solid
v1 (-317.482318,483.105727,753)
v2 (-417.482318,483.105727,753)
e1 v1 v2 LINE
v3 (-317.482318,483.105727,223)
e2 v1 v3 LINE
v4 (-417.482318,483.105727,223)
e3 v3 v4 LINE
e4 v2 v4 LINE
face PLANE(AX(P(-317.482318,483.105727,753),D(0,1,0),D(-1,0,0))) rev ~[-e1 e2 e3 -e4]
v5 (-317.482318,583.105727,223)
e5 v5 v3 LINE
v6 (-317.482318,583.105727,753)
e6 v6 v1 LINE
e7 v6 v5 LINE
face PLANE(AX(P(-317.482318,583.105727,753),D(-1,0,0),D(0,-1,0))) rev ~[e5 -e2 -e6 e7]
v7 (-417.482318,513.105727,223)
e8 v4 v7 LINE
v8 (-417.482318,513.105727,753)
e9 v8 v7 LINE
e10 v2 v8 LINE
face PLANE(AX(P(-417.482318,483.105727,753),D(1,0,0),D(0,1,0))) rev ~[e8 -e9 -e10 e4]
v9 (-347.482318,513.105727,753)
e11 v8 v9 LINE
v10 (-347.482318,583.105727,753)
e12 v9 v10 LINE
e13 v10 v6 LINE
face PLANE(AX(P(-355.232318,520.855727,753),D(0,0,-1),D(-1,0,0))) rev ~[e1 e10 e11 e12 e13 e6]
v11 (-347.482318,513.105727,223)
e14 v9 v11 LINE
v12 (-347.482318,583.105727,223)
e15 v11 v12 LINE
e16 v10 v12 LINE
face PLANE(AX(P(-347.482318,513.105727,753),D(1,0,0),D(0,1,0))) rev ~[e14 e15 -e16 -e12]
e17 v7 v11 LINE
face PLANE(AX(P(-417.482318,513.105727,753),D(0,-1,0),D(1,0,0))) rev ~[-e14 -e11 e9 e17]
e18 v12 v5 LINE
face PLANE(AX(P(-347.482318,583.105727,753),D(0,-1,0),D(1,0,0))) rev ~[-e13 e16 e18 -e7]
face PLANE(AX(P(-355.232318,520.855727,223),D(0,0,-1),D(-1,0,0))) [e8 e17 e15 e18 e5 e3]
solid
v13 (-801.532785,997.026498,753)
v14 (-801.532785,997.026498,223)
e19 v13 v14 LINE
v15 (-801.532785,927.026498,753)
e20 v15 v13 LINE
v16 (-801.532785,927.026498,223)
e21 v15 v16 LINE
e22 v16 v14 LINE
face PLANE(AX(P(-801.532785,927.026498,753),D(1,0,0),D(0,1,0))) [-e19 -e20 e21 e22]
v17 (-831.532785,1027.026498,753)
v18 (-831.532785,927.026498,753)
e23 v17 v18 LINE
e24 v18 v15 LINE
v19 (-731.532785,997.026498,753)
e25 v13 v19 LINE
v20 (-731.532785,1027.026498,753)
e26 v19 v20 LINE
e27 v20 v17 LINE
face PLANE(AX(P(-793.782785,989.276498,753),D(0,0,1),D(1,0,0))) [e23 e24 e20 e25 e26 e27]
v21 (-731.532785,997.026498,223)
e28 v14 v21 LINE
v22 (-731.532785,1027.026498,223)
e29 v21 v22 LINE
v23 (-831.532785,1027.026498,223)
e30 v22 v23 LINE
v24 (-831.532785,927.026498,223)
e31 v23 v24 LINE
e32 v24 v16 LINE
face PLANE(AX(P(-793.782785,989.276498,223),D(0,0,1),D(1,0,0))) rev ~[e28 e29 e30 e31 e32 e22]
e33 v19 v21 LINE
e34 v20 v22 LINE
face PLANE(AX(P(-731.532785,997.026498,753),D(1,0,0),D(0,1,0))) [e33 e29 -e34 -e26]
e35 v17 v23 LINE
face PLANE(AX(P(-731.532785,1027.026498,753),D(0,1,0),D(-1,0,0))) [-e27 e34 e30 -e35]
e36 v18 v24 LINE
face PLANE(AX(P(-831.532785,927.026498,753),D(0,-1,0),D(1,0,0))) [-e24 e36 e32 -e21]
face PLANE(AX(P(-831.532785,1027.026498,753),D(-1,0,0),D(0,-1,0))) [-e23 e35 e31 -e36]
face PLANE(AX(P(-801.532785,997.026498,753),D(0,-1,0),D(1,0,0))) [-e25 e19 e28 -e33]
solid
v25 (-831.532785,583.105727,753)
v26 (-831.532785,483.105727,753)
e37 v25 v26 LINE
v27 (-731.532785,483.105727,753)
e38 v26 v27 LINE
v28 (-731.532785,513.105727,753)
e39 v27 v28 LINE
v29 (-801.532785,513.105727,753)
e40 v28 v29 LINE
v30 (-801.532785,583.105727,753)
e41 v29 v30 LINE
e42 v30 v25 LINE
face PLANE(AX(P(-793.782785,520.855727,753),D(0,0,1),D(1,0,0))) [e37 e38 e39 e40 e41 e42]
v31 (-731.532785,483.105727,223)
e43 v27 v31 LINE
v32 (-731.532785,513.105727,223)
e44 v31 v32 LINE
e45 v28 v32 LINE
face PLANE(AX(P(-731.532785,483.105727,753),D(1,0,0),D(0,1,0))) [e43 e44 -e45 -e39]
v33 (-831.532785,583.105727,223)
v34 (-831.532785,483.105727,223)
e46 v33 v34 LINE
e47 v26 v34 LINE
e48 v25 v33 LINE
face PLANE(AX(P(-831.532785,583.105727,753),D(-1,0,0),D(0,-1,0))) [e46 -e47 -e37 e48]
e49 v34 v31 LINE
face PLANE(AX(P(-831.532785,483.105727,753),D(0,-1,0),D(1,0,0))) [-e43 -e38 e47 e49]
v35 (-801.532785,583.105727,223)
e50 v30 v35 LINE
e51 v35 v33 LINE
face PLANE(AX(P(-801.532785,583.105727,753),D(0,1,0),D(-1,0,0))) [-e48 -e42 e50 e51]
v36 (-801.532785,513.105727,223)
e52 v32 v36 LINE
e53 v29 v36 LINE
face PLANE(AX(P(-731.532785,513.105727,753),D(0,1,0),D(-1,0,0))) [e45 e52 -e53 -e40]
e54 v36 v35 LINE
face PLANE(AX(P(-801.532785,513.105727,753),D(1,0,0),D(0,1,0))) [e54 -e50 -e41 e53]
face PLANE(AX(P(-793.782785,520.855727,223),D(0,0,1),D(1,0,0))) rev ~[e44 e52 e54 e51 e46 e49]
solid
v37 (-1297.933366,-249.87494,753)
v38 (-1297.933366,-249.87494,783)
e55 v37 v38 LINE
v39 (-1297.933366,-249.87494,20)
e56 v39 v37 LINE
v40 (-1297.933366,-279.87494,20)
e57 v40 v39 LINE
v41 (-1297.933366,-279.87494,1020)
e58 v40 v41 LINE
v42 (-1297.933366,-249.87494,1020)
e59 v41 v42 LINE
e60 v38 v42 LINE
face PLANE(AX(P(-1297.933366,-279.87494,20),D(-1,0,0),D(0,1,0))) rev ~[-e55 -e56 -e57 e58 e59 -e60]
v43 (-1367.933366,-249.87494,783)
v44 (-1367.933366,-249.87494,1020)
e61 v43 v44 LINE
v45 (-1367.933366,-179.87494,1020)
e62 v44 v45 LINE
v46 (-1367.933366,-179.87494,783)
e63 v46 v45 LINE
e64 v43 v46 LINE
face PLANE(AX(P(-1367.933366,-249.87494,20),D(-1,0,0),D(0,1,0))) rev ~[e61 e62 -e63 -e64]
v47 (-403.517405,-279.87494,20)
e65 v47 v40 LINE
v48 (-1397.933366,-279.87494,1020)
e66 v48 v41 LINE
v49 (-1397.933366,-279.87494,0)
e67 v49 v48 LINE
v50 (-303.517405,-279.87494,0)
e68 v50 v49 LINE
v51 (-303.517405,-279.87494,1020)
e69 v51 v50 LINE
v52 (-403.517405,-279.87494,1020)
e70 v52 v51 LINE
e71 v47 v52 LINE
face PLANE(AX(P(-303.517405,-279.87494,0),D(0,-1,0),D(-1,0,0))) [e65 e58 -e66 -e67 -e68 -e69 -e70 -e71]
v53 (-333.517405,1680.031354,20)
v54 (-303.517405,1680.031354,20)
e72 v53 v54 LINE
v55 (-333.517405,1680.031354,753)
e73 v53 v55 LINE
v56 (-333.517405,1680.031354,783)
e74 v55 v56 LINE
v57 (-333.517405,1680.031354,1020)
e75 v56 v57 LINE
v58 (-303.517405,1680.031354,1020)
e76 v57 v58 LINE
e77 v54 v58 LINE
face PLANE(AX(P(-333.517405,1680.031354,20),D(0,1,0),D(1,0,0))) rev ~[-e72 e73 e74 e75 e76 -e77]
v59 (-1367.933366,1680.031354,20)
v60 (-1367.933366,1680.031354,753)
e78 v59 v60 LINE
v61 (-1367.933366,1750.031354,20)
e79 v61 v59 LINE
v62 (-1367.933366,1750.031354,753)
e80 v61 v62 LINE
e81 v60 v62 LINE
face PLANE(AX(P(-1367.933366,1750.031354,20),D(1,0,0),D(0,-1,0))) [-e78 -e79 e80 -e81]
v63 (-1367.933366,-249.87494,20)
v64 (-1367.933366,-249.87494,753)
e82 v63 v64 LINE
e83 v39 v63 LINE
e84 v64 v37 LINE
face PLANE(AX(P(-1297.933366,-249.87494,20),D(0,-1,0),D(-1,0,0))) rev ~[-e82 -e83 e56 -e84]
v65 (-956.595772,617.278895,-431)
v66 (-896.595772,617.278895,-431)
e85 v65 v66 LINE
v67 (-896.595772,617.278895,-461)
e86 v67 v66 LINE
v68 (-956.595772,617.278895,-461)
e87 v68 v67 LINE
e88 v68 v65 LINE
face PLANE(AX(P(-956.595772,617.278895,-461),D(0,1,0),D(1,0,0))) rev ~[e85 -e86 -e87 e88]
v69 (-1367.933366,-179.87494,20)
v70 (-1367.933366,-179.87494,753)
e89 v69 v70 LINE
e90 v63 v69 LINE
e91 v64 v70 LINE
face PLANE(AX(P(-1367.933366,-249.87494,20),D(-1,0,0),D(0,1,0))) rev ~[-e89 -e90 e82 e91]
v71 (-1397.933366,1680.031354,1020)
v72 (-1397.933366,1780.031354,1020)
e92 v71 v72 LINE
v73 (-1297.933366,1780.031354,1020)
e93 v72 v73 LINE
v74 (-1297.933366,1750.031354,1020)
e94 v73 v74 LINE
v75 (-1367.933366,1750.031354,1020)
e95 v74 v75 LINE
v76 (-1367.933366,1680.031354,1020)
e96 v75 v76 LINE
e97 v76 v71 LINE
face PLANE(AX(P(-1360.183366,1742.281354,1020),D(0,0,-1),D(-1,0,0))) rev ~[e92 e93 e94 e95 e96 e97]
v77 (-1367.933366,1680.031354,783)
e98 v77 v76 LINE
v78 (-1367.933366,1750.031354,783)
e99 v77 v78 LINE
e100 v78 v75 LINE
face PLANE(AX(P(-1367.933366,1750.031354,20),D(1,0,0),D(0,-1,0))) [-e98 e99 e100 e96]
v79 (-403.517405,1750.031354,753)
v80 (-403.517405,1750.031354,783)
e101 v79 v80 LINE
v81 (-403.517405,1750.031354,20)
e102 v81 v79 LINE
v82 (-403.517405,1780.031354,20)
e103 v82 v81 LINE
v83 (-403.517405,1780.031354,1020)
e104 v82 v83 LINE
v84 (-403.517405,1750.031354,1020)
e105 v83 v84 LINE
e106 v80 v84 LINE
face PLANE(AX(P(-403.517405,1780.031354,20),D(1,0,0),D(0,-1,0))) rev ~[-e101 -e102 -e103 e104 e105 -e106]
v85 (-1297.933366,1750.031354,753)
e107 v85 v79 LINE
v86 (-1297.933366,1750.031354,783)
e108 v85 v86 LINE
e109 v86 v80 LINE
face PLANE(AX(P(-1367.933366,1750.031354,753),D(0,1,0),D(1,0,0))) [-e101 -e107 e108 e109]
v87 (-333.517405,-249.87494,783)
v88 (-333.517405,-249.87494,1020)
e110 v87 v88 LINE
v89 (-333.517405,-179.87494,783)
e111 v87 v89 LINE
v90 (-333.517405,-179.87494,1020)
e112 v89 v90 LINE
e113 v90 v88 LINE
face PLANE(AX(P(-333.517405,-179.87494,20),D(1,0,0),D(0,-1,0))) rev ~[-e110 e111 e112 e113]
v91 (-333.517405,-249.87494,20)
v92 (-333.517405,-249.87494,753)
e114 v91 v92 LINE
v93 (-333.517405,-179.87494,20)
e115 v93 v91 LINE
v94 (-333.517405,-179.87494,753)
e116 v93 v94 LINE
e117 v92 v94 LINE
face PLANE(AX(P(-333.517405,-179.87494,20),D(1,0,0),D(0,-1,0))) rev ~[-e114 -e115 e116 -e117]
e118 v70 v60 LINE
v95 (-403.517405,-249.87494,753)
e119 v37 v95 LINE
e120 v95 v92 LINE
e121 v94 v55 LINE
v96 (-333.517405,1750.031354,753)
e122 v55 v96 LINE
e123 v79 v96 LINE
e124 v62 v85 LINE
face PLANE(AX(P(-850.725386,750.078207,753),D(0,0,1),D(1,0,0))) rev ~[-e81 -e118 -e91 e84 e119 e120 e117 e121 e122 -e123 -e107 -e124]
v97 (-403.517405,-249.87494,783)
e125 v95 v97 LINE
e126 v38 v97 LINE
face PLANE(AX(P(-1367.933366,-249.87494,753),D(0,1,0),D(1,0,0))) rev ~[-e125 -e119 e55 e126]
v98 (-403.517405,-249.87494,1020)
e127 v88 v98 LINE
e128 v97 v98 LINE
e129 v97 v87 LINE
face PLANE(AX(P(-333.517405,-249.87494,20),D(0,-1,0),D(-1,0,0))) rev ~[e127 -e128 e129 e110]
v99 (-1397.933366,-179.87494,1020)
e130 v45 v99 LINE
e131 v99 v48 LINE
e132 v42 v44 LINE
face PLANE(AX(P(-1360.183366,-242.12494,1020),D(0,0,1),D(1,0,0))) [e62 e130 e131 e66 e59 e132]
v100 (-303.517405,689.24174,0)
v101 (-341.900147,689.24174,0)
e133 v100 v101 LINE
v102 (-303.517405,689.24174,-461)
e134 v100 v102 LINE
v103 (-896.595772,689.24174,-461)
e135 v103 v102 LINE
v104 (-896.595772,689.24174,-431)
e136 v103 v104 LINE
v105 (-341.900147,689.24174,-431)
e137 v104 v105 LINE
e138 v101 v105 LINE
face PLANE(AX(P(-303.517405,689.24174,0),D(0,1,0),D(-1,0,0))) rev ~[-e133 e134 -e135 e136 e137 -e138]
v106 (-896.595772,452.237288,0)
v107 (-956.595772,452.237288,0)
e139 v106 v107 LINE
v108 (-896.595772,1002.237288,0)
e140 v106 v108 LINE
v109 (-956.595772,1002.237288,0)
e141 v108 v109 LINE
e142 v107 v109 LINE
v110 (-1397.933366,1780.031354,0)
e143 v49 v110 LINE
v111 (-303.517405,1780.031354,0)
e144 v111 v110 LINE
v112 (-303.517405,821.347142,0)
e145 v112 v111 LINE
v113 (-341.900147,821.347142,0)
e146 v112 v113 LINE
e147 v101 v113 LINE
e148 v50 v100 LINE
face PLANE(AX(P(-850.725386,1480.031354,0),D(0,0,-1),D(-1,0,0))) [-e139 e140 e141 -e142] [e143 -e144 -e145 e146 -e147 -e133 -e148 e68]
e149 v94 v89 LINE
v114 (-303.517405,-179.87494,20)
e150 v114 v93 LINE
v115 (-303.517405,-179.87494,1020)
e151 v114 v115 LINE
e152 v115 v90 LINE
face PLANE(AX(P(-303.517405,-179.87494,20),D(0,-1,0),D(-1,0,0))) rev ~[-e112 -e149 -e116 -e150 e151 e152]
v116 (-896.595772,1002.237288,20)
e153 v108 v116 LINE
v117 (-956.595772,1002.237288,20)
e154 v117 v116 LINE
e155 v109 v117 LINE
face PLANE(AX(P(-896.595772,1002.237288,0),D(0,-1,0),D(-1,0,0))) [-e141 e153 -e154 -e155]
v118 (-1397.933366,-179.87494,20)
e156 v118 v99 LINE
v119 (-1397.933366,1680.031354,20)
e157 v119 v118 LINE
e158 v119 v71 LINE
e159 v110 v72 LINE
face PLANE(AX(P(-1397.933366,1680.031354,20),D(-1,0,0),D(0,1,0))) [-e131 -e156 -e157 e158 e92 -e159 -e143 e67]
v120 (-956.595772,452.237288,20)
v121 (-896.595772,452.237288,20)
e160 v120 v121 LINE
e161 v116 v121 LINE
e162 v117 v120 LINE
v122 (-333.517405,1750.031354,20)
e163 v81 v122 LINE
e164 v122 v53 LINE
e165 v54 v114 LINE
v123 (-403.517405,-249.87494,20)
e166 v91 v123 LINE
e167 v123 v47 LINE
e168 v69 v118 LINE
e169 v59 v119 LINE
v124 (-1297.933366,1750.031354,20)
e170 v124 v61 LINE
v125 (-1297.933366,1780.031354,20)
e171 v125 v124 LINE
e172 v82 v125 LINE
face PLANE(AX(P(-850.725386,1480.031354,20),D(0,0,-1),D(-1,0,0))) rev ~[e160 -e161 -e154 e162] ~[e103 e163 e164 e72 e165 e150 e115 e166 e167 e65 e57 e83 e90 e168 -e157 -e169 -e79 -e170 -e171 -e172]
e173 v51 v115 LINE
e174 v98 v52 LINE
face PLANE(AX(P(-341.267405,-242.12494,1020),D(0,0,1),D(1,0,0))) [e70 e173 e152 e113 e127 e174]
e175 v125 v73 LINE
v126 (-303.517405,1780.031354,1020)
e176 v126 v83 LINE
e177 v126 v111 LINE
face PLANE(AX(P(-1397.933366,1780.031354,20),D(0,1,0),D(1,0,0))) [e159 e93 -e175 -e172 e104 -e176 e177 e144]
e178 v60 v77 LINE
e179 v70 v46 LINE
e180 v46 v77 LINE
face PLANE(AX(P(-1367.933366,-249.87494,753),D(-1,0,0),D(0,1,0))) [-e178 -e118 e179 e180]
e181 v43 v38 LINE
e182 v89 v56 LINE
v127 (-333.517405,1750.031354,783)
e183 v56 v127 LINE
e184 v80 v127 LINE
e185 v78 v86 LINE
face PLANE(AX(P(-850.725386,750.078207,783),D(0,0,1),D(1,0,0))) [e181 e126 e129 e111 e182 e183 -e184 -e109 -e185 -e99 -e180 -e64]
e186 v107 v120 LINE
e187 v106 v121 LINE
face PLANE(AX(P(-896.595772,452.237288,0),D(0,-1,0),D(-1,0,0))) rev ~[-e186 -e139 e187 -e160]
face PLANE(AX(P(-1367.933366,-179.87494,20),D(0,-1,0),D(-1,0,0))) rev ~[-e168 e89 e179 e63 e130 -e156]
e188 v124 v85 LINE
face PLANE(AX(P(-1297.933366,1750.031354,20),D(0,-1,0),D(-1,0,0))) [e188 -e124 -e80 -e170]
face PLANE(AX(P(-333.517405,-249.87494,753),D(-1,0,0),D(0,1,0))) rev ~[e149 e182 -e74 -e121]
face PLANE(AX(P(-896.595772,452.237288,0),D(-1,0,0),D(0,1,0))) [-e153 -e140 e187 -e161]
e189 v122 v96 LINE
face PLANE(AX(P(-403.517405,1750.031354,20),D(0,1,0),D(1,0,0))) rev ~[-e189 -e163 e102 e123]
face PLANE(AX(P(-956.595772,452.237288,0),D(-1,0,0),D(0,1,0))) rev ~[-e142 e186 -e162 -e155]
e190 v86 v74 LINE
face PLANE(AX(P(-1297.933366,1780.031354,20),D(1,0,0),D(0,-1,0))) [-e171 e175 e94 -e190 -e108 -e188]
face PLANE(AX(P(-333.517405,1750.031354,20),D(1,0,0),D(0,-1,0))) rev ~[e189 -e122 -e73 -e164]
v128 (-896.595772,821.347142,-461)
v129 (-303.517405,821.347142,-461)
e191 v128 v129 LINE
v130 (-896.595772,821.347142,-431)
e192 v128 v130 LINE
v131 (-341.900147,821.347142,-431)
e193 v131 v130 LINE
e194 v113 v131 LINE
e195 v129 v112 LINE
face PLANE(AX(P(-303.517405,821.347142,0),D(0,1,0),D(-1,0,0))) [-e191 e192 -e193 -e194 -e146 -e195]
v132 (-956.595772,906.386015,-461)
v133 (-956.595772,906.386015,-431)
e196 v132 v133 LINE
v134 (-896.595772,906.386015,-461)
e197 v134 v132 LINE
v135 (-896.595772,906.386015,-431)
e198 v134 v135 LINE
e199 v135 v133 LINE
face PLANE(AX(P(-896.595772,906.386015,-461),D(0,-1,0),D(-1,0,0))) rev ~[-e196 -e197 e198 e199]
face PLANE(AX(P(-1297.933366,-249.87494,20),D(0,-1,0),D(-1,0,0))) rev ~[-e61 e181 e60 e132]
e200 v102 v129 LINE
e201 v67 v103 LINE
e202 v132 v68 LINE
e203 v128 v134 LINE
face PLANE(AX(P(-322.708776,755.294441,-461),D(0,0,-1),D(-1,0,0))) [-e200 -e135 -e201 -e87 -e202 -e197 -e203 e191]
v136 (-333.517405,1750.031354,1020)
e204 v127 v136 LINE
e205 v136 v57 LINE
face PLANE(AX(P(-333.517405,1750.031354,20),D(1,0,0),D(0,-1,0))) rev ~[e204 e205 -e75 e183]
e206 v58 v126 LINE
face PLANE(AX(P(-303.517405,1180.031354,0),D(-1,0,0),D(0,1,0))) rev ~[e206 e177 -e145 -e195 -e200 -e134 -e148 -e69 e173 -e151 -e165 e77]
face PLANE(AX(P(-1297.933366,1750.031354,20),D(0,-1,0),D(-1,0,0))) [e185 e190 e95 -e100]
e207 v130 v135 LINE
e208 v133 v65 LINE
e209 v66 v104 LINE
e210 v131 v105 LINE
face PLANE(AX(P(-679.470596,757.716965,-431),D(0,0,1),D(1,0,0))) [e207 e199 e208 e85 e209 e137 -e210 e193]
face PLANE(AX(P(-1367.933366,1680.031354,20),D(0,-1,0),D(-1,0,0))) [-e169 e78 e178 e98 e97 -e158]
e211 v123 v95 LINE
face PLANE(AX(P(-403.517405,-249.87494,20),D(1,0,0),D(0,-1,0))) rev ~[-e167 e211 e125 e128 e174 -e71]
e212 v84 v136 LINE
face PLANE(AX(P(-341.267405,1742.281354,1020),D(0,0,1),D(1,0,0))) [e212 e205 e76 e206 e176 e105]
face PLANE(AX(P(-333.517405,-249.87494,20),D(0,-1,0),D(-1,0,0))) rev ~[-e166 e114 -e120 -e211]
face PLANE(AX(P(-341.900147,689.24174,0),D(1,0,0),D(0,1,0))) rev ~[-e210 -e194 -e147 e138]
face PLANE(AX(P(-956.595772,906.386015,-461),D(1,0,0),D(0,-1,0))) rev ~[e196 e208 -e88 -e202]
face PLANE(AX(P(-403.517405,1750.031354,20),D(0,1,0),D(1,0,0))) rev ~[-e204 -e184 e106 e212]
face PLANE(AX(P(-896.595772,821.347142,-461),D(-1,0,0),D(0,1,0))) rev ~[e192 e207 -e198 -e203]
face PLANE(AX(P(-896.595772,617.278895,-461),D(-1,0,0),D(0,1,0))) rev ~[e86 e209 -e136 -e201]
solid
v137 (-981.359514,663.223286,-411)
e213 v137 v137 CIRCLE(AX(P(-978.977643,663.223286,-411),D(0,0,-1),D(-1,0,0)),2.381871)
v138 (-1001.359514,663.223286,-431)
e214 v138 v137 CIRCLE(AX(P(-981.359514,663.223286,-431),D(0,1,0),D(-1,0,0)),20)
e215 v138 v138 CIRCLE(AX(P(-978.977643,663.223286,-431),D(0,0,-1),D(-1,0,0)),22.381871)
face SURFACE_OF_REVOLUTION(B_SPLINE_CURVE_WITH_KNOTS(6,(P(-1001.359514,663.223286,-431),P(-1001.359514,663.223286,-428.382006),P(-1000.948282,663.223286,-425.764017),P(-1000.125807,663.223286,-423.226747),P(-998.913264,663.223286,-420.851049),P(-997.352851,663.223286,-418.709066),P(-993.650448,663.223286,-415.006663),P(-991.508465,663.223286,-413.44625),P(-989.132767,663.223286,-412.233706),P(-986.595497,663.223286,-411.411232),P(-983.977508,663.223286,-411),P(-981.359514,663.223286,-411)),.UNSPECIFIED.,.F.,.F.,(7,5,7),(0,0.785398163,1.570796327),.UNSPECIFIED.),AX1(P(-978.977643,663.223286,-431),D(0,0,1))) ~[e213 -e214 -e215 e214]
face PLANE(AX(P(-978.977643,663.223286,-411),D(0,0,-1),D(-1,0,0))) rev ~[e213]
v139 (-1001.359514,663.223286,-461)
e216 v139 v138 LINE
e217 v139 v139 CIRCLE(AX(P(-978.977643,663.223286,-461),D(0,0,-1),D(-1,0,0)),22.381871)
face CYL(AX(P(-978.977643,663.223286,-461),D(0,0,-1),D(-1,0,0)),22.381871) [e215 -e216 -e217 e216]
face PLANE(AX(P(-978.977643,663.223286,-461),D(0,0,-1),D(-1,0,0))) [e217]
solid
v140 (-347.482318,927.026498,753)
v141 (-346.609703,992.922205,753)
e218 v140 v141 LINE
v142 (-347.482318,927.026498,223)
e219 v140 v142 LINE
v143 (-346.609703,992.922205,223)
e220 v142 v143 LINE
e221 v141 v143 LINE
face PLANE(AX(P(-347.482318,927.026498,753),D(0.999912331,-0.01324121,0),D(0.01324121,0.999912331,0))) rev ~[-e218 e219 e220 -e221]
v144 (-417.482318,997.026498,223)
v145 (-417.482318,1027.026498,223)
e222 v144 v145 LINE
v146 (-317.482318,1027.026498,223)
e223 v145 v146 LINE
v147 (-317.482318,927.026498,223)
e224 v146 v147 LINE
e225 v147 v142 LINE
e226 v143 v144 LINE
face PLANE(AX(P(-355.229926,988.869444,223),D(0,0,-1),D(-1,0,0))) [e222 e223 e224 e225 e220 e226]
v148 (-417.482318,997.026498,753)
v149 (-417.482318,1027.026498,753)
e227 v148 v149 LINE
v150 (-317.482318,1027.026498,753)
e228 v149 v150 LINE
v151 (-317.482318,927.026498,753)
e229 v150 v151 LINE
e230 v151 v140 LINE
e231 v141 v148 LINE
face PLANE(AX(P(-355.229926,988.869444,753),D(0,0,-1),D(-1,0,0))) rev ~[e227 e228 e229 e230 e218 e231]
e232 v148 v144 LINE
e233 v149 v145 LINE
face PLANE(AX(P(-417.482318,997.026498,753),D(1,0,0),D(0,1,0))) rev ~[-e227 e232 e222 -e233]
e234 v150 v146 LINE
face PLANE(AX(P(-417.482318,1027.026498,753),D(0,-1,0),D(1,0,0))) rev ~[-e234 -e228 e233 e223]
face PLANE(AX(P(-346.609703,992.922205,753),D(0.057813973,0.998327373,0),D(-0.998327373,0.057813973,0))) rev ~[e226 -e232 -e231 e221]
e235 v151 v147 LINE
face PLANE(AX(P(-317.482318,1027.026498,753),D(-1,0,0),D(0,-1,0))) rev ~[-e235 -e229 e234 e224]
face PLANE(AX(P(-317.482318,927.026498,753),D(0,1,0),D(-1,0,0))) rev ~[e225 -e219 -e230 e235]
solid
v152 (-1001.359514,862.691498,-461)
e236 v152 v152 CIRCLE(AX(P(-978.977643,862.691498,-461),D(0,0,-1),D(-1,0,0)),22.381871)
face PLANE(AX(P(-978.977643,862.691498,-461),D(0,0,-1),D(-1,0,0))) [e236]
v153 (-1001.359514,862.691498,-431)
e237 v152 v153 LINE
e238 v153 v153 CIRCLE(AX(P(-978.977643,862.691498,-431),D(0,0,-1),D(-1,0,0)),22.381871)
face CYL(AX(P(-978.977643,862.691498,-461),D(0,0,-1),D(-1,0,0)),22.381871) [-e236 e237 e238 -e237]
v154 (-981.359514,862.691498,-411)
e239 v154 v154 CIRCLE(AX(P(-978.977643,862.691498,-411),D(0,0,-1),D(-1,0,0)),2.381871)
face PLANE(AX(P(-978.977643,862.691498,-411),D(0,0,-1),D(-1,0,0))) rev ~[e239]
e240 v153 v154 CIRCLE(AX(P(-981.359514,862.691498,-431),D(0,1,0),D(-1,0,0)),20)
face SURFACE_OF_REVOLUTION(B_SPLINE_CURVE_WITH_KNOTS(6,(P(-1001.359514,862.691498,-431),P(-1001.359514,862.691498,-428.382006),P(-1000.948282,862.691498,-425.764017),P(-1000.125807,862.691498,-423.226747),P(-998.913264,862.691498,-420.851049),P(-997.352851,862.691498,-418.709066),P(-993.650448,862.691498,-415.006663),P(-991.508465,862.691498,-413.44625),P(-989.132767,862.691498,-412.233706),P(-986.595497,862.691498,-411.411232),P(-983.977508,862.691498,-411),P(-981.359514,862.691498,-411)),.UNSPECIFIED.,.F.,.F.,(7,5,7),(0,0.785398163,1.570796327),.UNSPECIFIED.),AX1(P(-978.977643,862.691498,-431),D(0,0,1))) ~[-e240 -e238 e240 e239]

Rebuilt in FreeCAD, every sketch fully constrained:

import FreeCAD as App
import Part
import Sketcher


def edges_at(feature, points):
    """Names of the edges that pass closest to the given points."""
    edges = feature.Shape.Edges
    near = lambda p: min(range(len(edges)), key=lambda i: edges[i].distToShape(Part.Vertex(*p))[0])
    return sorted({f"Edge{near(p) + 1}" for p in points})

doc = App.newDocument("Part")
body = doc.addObject("PartDesign::Body", "Body")

# Sketch on XY plane
sketch1 = body.newObject("Sketcher::SketchObject", "Sketch")
sketch1.AttachmentSupport = (doc.getObject("XY_Plane"), [""])
sketch1.MapMode = "FlatFace"
sketch1.addGeometry([
    Part.LineSegment(App.Vector(-1398, 1430, 0), App.Vector(-1398, -70, 0)),
    Part.LineSegment(App.Vector(-1398, -70, 0), App.Vector(102, -70, 0)),
    Part.LineSegment(App.Vector(102, -70, 0), App.Vector(102, 1430, 0)),
    Part.LineSegment(App.Vector(102, 1430, 0), App.Vector(-1398, 1430, 0)),
], False)
sketch1.addConstraint([
    Sketcher.Constraint("Coincident", 0, 2, 1, 1),
    Sketcher.Constraint("Coincident", 1, 2, 2, 1),
    Sketcher.Constraint("Coincident", 2, 2, 3, 1),
    Sketcher.Constraint("Coincident", 3, 2, 0, 1),
    Sketcher.Constraint("Vertical", 0),
    Sketcher.Constraint("Horizontal", 1),
    Sketcher.Constraint("Vertical", 2),
    Sketcher.Constraint("Horizontal", 3),
    Sketcher.Constraint("Equal", 3, 0),
    Sketcher.Constraint("DistanceX", 1, 1, 1, 2, 1500.0),
    Sketcher.Constraint("DistanceX", 0, 2, -1, 1, 1397.933366),
    Sketcher.Constraint("DistanceY", 0, 2, -1, 1, 69.957445),
])
pad1 = body.newObject("PartDesign::Pad", "Pad")
pad1.Profile = sketch1
pad1.Length = 20

# Sketch on XY plane
sketch2 = body.newObject("Sketcher::SketchObject", "Sketch001")
sketch2.AttachmentSupport = (doc.getObject("XY_Plane"), [""])
sketch2.MapMode = "FlatFace"
sketch2.addGeometry([
    Part.LineSegment(App.Vector(-897, 1002, 0), App.Vector(-897, 452, 0)),
    Part.LineSegment(App.Vector(-897, 452, 0), App.Vector(-957, 452, 0)),
    Part.LineSegment(App.Vector(-957, 452, 0), App.Vector(-957, 1002, 0)),
    Part.LineSegment(App.Vector(-957, 1002, 0), App.Vector(-897, 1002, 0)),
], False)
sketch2.addConstraint([
    Sketcher.Constraint("Coincident", 0, 2, 1, 1),
    Sketcher.Constraint("Coincident", 1, 2, 2, 1),
    Sketcher.Constraint("Coincident", 2, 2, 3, 1),
    Sketcher.Constraint("Coincident", 3, 2, 0, 1),
    Sketcher.Constraint("Vertical", 0),
    Sketcher.Constraint("Horizontal", 1),
    Sketcher.Constraint("Vertical", 2),
    Sketcher.Constraint("Horizontal", 3),
    Sketcher.Constraint("DistanceX", 1, 2, 1, 1, 60.0),
    Sketcher.Constraint("DistanceY", 0, 2, 0, 1, 550.0),
    Sketcher.Constraint("DistanceX", 0, 2, -1, 1, 896.595772),
    Sketcher.Constraint("DistanceY", -1, 1, 0, 2, 452.237288),
])
pocket1 = body.newObject("PartDesign::Pocket", "Pocket")
pocket1.Profile = sketch2
pocket1.Length = 50
pocket1.Reversed = True

# Sketch on XY plane
sketch3 = body.newObject("Sketcher::SketchObject", "Sketch002")
sketch3.AttachmentSupport = (doc.getObject("XY_Plane"), [""])
sketch3.MapMode = "FlatFace"
sketch3.AttachmentOffset = App.Placement(App.Vector(0, 0, 20), App.Rotation())
sketch3.addGeometry([
    Part.LineSegment(App.Vector(-1398, 1180, 0), App.Vector(-304, 1180, 0)),  # 0
    Part.LineSegment(App.Vector(-304, 1180, 0), App.Vector(-304, 320, 0)),  # 1
    Part.LineSegment(App.Vector(-304, 320, 0), App.Vector(-1398, 320, 0)),  # 2
    Part.LineSegment(App.Vector(-1398, 320, 0), App.Vector(-2008, 197, 0)),  # 3
    Part.LineSegment(App.Vector(-2008, 197, 0), App.Vector(-1939, -210, 0)),  # 4
    Part.LineSegment(App.Vector(-1939, -210, 0), App.Vector(-1019, -263, 0)),  # 5
    Part.LineSegment(App.Vector(-1019, -263, 0), App.Vector(191, -396, 0)),  # 6
    Part.LineSegment(App.Vector(191, -396, 0), App.Vector(1017, -131, 0)),  # 7
    Part.LineSegment(App.Vector(1017, -131, 0), App.Vector(397, 795, 0)),  # 8
    Part.LineSegment(App.Vector(397, 795, 0), App.Vector(265, 1571, 0)),  # 9
    Part.LineSegment(App.Vector(265, 1571, 0), App.Vector(-1070, 1499, 0)),  # 10
    Part.LineSegment(App.Vector(-1070, 1499, 0), App.Vector(-1590, 1439, 0)),  # 11
    Part.LineSegment(App.Vector(-1590, 1439, 0), App.Vector(-1644, 1252, 0)),  # 12
    Part.LineSegment(App.Vector(-1644, 1252, 0), App.Vector(-1398, 1180, 0)),  # 13
], False)
sketch3.addConstraint([
    Sketcher.Constraint("Coincident", 0, 2, 1, 1),
    Sketcher.Constraint("Coincident", 1, 2, 2, 1),
    Sketcher.Constraint("Coincident", 2, 2, 3, 1),
    Sketcher.Constraint("Coincident", 3, 2, 4, 1),
    Sketcher.Constraint("Coincident", 4, 2, 5, 1),
    Sketcher.Constraint("Coincident", 5, 2, 6, 1),
    Sketcher.Constraint("Coincident", 6, 2, 7, 1),
    Sketcher.Constraint("Coincident", 7, 2, 8, 1),
    Sketcher.Constraint("Coincident", 8, 2, 9, 1),
    Sketcher.Constraint("Coincident", 9, 2, 10, 1),
    Sketcher.Constraint("Coincident", 10, 2, 11, 1),
    Sketcher.Constraint("Coincident", 11, 2, 12, 1),
    Sketcher.Constraint("Coincident", 12, 2, 13, 1),
    Sketcher.Constraint("Coincident", 13, 2, 0, 1),
    Sketcher.Constraint("Horizontal", 0),
    Sketcher.Constraint("Vertical", 1),
    Sketcher.Constraint("Horizontal", 2),
    Sketcher.Constraint("Parallel", 4, 9),
    Sketcher.Constraint("Perpendicular", 12, 13),
    Sketcher.Constraint("Vertical", 2, 2, 13, 2),
    Sketcher.Constraint("Distance", 5, 920.7889),
    Sketcher.Constraint("DistanceX", 0, 1, 0, 2, 1094.415961),
    Sketcher.Constraint("DistanceY", 4, 2, 3, 2, 406.764899),
    Sketcher.Constraint("DistanceY", 5, 2, 2, 2, 583.6178),
    Sketcher.Constraint("DistanceX", 11, 2, 0, 2, 1286.3507),
    Sketcher.Constraint("Distance", 6, 1217.783809),
    Sketcher.Constraint("Distance", 7, 867.542569),
    Sketcher.Constraint("Distance", 9, 786.919632),
    Sketcher.Constraint("Distance", 11, 523.09351),
    Sketcher.Constraint("Distance", 12, 194.46202),
    Sketcher.Constraint("Distance", 13, 256.89942),
    Sketcher.Constraint("DistanceY", 1, 2, 1, 1, 859.906294),
    Sketcher.Constraint("DistanceY", -1, 1, 1, 2, 320.12506),
    Sketcher.Constraint("DistanceX", -1, 1, 6, 2, 191.21134),
    Sketcher.Constraint("DistanceX", -1, 1, 7, 2, 1017.298662),
    Sketcher.Constraint("DistanceX", -1, 1, 9, 2, 264.742348),
    Sketcher.Constraint("DistanceY", -1, 1, 9, 2, 1570.897851),
    Sketcher.Constraint("DistanceY", 3, 2, 0, 2, 983.203251),
    Sketcher.Constraint("DistanceX", 4, 2, 2, 2, 540.641018),
    Sketcher.Constraint("DistanceX", 3, 2, 5, 2, 988.600848),
    Sketcher.Constraint("DistanceY", 7, 2, 0, 2, 1311.038391),
    Sketcher.Constraint("DistanceY", 0, 2, 10, 2, 318.706528),
])
pocket2 = body.newObject("PartDesign::Pocket", "Pocket001")
pocket2.Profile = sketch3
pocket2.Type = "ThroughAll"

# Sketch on XY plane
sketch4 = body.newObject("Sketcher::SketchObject", "Sketch003")
sketch4.AttachmentSupport = (doc.getObject("XY_Plane"), [""])
sketch4.MapMode = "FlatFace"
sketch4.addGeometry([
    Part.LineSegment(App.Vector(-304, 1780, 0), App.Vector(-304, 1180, 0)),  # 0
    Part.LineSegment(App.Vector(-304, 1180, 0), App.Vector(-1398, 1180, 0)),  # 1
    Part.LineSegment(App.Vector(-1398, 1180, 0), App.Vector(-1398, 1780, 0)),  # 2
    Part.LineSegment(App.Vector(-1398, 1780, 0), App.Vector(-304, 1780, 0)),  # 3
    Part.LineSegment(App.Vector(-304, 320, 0), App.Vector(-304, -280, 0)),  # 4
    Part.LineSegment(App.Vector(-304, -280, 0), App.Vector(-1398, -280, 0)),  # 5
    Part.LineSegment(App.Vector(-1398, -280, 0), App.Vector(-1398, 320, 0)),  # 6
    Part.LineSegment(App.Vector(-1398, 320, 0), App.Vector(-304, 320, 0)),  # 7
], False)
sketch4.addConstraint([
    Sketcher.Constraint("Coincident", 0, 2, 1, 1),
    Sketcher.Constraint("Coincident", 1, 2, 2, 1),
    Sketcher.Constraint("Coincident", 2, 2, 3, 1),
    Sketcher.Constraint("Coincident", 3, 2, 0, 1),
    Sketcher.Constraint("Coincident", 4, 2, 5, 1),
    Sketcher.Constraint("Coincident", 5, 2, 6, 1),
    Sketcher.Constraint("Coincident", 6, 2, 7, 1),
    Sketcher.Constraint("Coincident", 7, 2, 4, 1),
    Sketcher.Constraint("Vertical", 0),
    Sketcher.Constraint("Horizontal", 1),
    Sketcher.Constraint("Vertical", 2),
    Sketcher.Constraint("Horizontal", 3),
    Sketcher.Constraint("Vertical", 4),
    Sketcher.Constraint("Horizontal", 5),
    Sketcher.Constraint("Vertical", 6),
    Sketcher.Constraint("Horizontal", 7),
    Sketcher.Constraint("Vertical", 3, 2, 4, 2),
    Sketcher.Constraint("Vertical", 2, 2, 5, 2),
    Sketcher.Constraint("Equal", 2, 4),
    Sketcher.Constraint("DistanceY", 0, 2, 0, 1, 600.0),
    Sketcher.Constraint("DistanceX", 1, 2, 1, 1, 1094.415961),
    Sketcher.Constraint("DistanceY", 4, 2, -1, 1, 279.87494),
    Sketcher.Constraint("DistanceX", 0, 2, -1, 1, 303.517405),
    Sketcher.Constraint("DistanceY", -1, 1, 0, 2, 1180.031354),
])
pad2 = body.newObject("PartDesign::Pad", "Pad001")
pad2.Profile = sketch4
pad2.Length = 20

# Sketch on XY plane
sketch5 = body.newObject("Sketcher::SketchObject", "Sketch004")
sketch5.AttachmentSupport = (doc.getObject("XY_Plane"), [""])
sketch5.MapMode = "FlatFace"
sketch5.AttachmentOffset = App.Placement(App.Vector(0, 0, 20), App.Rotation())
sketch5.addGeometry([
    Part.LineSegment(App.Vector(-1298, 1780, 0), App.Vector(-1398, 1780, 0)),  # 0
    Part.LineSegment(App.Vector(-1398, 1780, 0), App.Vector(-1398, 1680, 0)),  # 1
    Part.LineSegment(App.Vector(-1398, 1680, 0), App.Vector(-1368, 1680, 0)),  # 2
    Part.LineSegment(App.Vector(-1368, 1680, 0), App.Vector(-1368, 1750, 0)),  # 3
    Part.LineSegment(App.Vector(-1368, 1750, 0), App.Vector(-1298, 1750, 0)),  # 4
    Part.LineSegment(App.Vector(-1298, 1750, 0), App.Vector(-1298, 1780, 0)),  # 5
    Part.LineSegment(App.Vector(-304, 1780, 0), App.Vector(-404, 1780, 0)),  # 6
    Part.LineSegment(App.Vector(-404, 1780, 0), App.Vector(-404, 1750, 0)),  # 7
    Part.LineSegment(App.Vector(-404, 1750, 0), App.Vector(-334, 1750, 0)),  # 8
    Part.LineSegment(App.Vector(-334, 1750, 0), App.Vector(-334, 1680, 0)),  # 9
    Part.LineSegment(App.Vector(-334, 1680, 0), App.Vector(-304, 1680, 0)),  # 10
    Part.LineSegment(App.Vector(-304, 1680, 0), App.Vector(-304, 1780, 0)),  # 11
    Part.LineSegment(App.Vector(-1398, -180, 0), App.Vector(-1398, -280, 0)),  # 12
    Part.LineSegment(App.Vector(-1398, -280, 0), App.Vector(-1298, -280, 0)),  # 13
    Part.LineSegment(App.Vector(-1298, -280, 0), App.Vector(-1298, -250, 0)),  # 14
    Part.LineSegment(App.Vector(-1298, -250, 0), App.Vector(-1368, -250, 0)),  # 15
    Part.LineSegment(App.Vector(-1368, -250, 0), App.Vector(-1368, -180, 0)),  # 16
    Part.LineSegment(App.Vector(-1368, -180, 0), App.Vector(-1398, -180, 0)),  # 17
    Part.LineSegment(App.Vector(-304, -280, 0), App.Vector(-304, -180, 0)),  # 18
    Part.LineSegment(App.Vector(-304, -180, 0), App.Vector(-334, -180, 0)),  # 19
    Part.LineSegment(App.Vector(-334, -180, 0), App.Vector(-334, -250, 0)),  # 20
    Part.LineSegment(App.Vector(-334, -250, 0), App.Vector(-404, -250, 0)),  # 21
    Part.LineSegment(App.Vector(-404, -250, 0), App.Vector(-404, -280, 0)),  # 22
    Part.LineSegment(App.Vector(-404, -280, 0), App.Vector(-304, -280, 0)),  # 23
], False)
sketch5.addConstraint([
    Sketcher.Constraint("Coincident", 0, 2, 1, 1),
    Sketcher.Constraint("Coincident", 1, 2, 2, 1),
    Sketcher.Constraint("Coincident", 2, 2, 3, 1),
    Sketcher.Constraint("Coincident", 3, 2, 4, 1),
    Sketcher.Constraint("Coincident", 4, 2, 5, 1),
    Sketcher.Constraint("Coincident", 5, 2, 0, 1),
    Sketcher.Constraint("Coincident", 6, 2, 7, 1),
    Sketcher.Constraint("Coincident", 7, 2, 8, 1),
    Sketcher.Constraint("Coincident", 8, 2, 9, 1),
    Sketcher.Constraint("Coincident", 9, 2, 10, 1),
    Sketcher.Constraint("Coincident", 10, 2, 11, 1),
    Sketcher.Constraint("Coincident", 11, 2, 6, 1),
    Sketcher.Constraint("Coincident", 12, 2, 13, 1),
    Sketcher.Constraint("Coincident", 13, 2, 14, 1),
    Sketcher.Constraint("Coincident", 14, 2, 15, 1),
    Sketcher.Constraint("Coincident", 15, 2, 16, 1),
    Sketcher.Constraint("Coincident", 16, 2, 17, 1),
    Sketcher.Constraint("Coincident", 17, 2, 12, 1),
    Sketcher.Constraint("Coincident", 18, 2, 19, 1),
    Sketcher.Constraint("Coincident", 19, 2, 20, 1),
    Sketcher.Constraint("Coincident", 20, 2, 21, 1),
    Sketcher.Constraint("Coincident", 21, 2, 22, 1),
    Sketcher.Constraint("Coincident", 22, 2, 23, 1),
    Sketcher.Constraint("Coincident", 23, 2, 18, 1),
    Sketcher.Constraint("Horizontal", 0),
    Sketcher.Constraint("Vertical", 1),
    Sketcher.Constraint("Horizontal", 2),
    Sketcher.Constraint("Vertical", 3),
    Sketcher.Constraint("Horizontal", 4),
    Sketcher.Constraint("Vertical", 5),
    Sketcher.Constraint("Horizontal", 6),
    Sketcher.Constraint("Vertical", 7),
    Sketcher.Constraint("Horizontal", 8),
    Sketcher.Constraint("Vertical", 9),
    Sketcher.Constraint("Horizontal", 10),
    Sketcher.Constraint("Vertical", 11),
    Sketcher.Constraint("Vertical", 12),
    Sketcher.Constraint("Horizontal", 13),
    Sketcher.Constraint("Vertical", 14),
    Sketcher.Constraint("Horizontal", 15),
    Sketcher.Constraint("Vertical", 16),
    Sketcher.Constraint("Horizontal", 17),
    Sketcher.Constraint("Vertical", 18),
    Sketcher.Constraint("Horizontal", 19),
    Sketcher.Constraint("Vertical", 20),
    Sketcher.Constraint("Horizontal", 21),
    Sketcher.Constraint("Vertical", 22),
    Sketcher.Constraint("Horizontal", 23),
    Sketcher.Constraint("Horizontal", 5, 2, 6, 2),
    Sketcher.Constraint("Horizontal", 4, 2, 7, 2),
    Sketcher.Constraint("Horizontal", 2, 2, 9, 2),
    Sketcher.Constraint("Horizontal", 17, 2, 18, 2),
    Sketcher.Constraint("Horizontal", 15, 2, 20, 2),
    Sketcher.Constraint("Horizontal", 13, 2, 22, 2),
    Sketcher.Constraint("Vertical", 1, 2, 12, 2),
    Sketcher.Constraint("Vertical", 5, 2, 13, 2),
    Sketcher.Constraint("Vertical", 3, 2, 15, 2),
    Sketcher.Constraint("Vertical", 11, 2, 18, 2),
    Sketcher.Constraint("Vertical", 9, 2, 19, 2),
    Sketcher.Constraint("Vertical", 7, 2, 21, 2),
    Sketcher.Constraint("Equal", 0, 6),
    Sketcher.Constraint("Equal", 4, 8),
    Sketcher.Constraint("Equal", 23, 1),
    Sketcher.Constraint("Equal", 21, 3),
    Sketcher.Constraint("Equal", 11, 12),
    Sketcher.Constraint("Equal", 7, 14),
    Sketcher.Constraint("DistanceX", 0, 2, 0, 1, 100.0),
    Sketcher.Constraint("DistanceX", 2, 1, 2, 2, 30.0),
    Sketcher.Constraint("DistanceY", 12, 2, -1, 1, 279.87494),
    Sketcher.Constraint("DistanceX", 5, 2, 6, 2, 894.415961),
    Sketcher.Constraint("DistanceX", 0, 2, -1, 1, 1397.933366),
    Sketcher.Constraint("DistanceY", -1, 1, 0, 2, 1780.031354),
])
pad3 = body.newObject("PartDesign::Pad", "Pad002")
pad3.Profile = sketch5
pad3.Length = 1000

# Sketch on XY plane
sketch6 = body.newObject("Sketcher::SketchObject", "Sketch005")
sketch6.AttachmentSupport = (doc.getObject("XY_Plane"), [""])
sketch6.MapMode = "FlatFace"
sketch6.AttachmentOffset = App.Placement(App.Vector(0, 0, 753), App.Rotation())
sketch6.addGeometry([
    Part.LineSegment(App.Vector(-1368, 1750, 0), App.Vector(-1368, -250, 0)),
    Part.LineSegment(App.Vector(-1368, -250, 0), App.Vector(-334, -250, 0)),
    Part.LineSegment(App.Vector(-334, -250, 0), App.Vector(-334, 1750, 0)),
    Part.LineSegment(App.Vector(-334, 1750, 0), App.Vector(-1368, 1750, 0)),
], False)
sketch6.addConstraint([
    Sketcher.Constraint("Coincident", 0, 2, 1, 1),
    Sketcher.Constraint("Coincident", 1, 2, 2, 1),
    Sketcher.Constraint("Coincident", 2, 2, 3, 1),
    Sketcher.Constraint("Coincident", 3, 2, 0, 1),
    Sketcher.Constraint("Vertical", 0),
    Sketcher.Constraint("Horizontal", 1),
    Sketcher.Constraint("Vertical", 2),
    Sketcher.Constraint("Horizontal", 3),
    Sketcher.Constraint("DistanceX", 1, 1, 1, 2, 1034.415961),
    Sketcher.Constraint("DistanceY", 0, 2, 0, 1, 1999.906294),
    Sketcher.Constraint("DistanceY", 0, 2, -1, 1, 249.87494),
    Sketcher.Constraint("DistanceX", 0, 2, -1, 1, 1367.933366),
])
pad4 = body.newObject("PartDesign::Pad", "Pad003")
pad4.Profile = sketch6
pad4.Length = 30

# Sketch on XY plane
sketch7 = body.newObject("Sketcher::SketchObject", "Sketch006")
sketch7.AttachmentSupport = (doc.getObject("XY_Plane"), [""])
sketch7.MapMode = "FlatFace"
sketch7.addGeometry([
    Part.LineSegment(App.Vector(-304, 821, 0), App.Vector(-304, 689, 0)),
    Part.LineSegment(App.Vector(-304, 689, 0), App.Vector(-342, 689, 0)),
    Part.LineSegment(App.Vector(-342, 689, 0), App.Vector(-342, 821, 0)),
    Part.LineSegment(App.Vector(-342, 821, 0), App.Vector(-304, 821, 0)),
], False)
sketch7.addConstraint([
    Sketcher.Constraint("Coincident", 0, 2, 1, 1),
    Sketcher.Constraint("Coincident", 1, 2, 2, 1),
    Sketcher.Constraint("Coincident", 2, 2, 3, 1),
    Sketcher.Constraint("Coincident", 3, 2, 0, 1),
    Sketcher.Constraint("Vertical", 0),
    Sketcher.Constraint("Horizontal", 1),
    Sketcher.Constraint("Vertical", 2),
    Sketcher.Constraint("Horizontal", 3),
    Sketcher.Constraint("DistanceX", 1, 2, 1, 1, 38.382742),
    Sketcher.Constraint("DistanceY", 0, 2, 0, 1, 132.105402),
    Sketcher.Constraint("DistanceY", -1, 1, 0, 2, 689.24174),
    Sketcher.Constraint("DistanceX", 0, 2, -1, 1, 303.517405),
])
pad5 = body.newObject("PartDesign::Pad", "Pad004")
pad5.Profile = sketch7
pad5.Length = 461
pad5.Reversed = True

# Sketch on XY plane
sketch8 = body.newObject("Sketcher::SketchObject", "Sketch007")
sketch8.AttachmentSupport = (doc.getObject("XY_Plane"), [""])
sketch8.MapMode = "FlatFace"
sketch8.AttachmentOffset = App.Placement(App.Vector(0, 0, -461), App.Rotation())
sketch8.addGeometry([
    Part.LineSegment(App.Vector(-897, 821, 0), App.Vector(-304, 821, 0)),  # 0
    Part.LineSegment(App.Vector(-304, 821, 0), App.Vector(-304, 689, 0)),  # 1
    Part.LineSegment(App.Vector(-304, 689, 0), App.Vector(-897, 689, 0)),  # 2
    Part.LineSegment(App.Vector(-897, 689, 0), App.Vector(-897, 617, 0)),  # 3
    Part.LineSegment(App.Vector(-897, 617, 0), App.Vector(-957, 617, 0)),  # 4
    Part.LineSegment(App.Vector(-957, 617, 0), App.Vector(-957, 906, 0)),  # 5
    Part.LineSegment(App.Vector(-957, 906, 0), App.Vector(-897, 906, 0)),  # 6
    Part.LineSegment(App.Vector(-897, 906, 0), App.Vector(-897, 821, 0)),  # 7
], False)
sketch8.addConstraint([
    Sketcher.Constraint("Coincident", 0, 2, 1, 1),
    Sketcher.Constraint("Coincident", 1, 2, 2, 1),
    Sketcher.Constraint("Coincident", 2, 2, 3, 1),
    Sketcher.Constraint("Coincident", 3, 2, 4, 1),
    Sketcher.Constraint("Coincident", 4, 2, 5, 1),
    Sketcher.Constraint("Coincident", 5, 2, 6, 1),
    Sketcher.Constraint("Coincident", 6, 2, 7, 1),
    Sketcher.Constraint("Coincident", 7, 2, 0, 1),
    Sketcher.Constraint("Horizontal", 0),
    Sketcher.Constraint("Vertical", 1),
    Sketcher.Constraint("Horizontal", 2),
    Sketcher.Constraint("Vertical", 3),
    Sketcher.Constraint("Horizontal", 4),
    Sketcher.Constraint("Vertical", 5),
    Sketcher.Constraint("Horizontal", 6),
    Sketcher.Constraint("Vertical", 7),
    Sketcher.Constraint("Vertical", 3, 2, 6, 2),
    Sketcher.Constraint("DistanceX", 4, 2, 4, 1, 60.0),
    Sketcher.Constraint("DistanceY", 5, 1, 5, 2, 289.10712),
    Sketcher.Constraint("DistanceX", 0, 1, 0, 2, 593.078367),
    Sketcher.Constraint("DistanceY", 1, 2, 1, 1, 132.105402),
    Sketcher.Constraint("DistanceY", 3, 2, 3, 1, 71.962845),
    Sketcher.Constraint("DistanceY", -1, 1, 1, 2, 689.24174),
    Sketcher.Constraint("DistanceX", 2, 2, -1, 1, 896.595772),
])
pad6 = body.newObject("PartDesign::Pad", "Pad005")
pad6.Profile = sketch8
pad6.Length = 30
body2 = doc.addObject("PartDesign::Body", "Body001")

# Sketch on XY plane
sketch9 = body2.newObject("Sketcher::SketchObject", "Sketch008")
sketch9.AttachmentSupport = (doc.getObject("XY_Plane001"), [""])
sketch9.MapMode = "FlatFace"
sketch9.AttachmentOffset = App.Placement(App.Vector(0, 0, 753), App.Rotation())
sketch9.addGeometry([
    Part.LineSegment(App.Vector(-347, 993, 0), App.Vector(-417, 997, 0)),  # 0
    Part.LineSegment(App.Vector(-417, 997, 0), App.Vector(-417, 1027, 0)),  # 1
    Part.LineSegment(App.Vector(-417, 1027, 0), App.Vector(-317, 1027, 0)),  # 2
    Part.LineSegment(App.Vector(-317, 1027, 0), App.Vector(-317, 927, 0)),  # 3
    Part.LineSegment(App.Vector(-317, 927, 0), App.Vector(-347, 927, 0)),  # 4
    Part.LineSegment(App.Vector(-347, 927, 0), App.Vector(-347, 993, 0)),  # 5
], False)
sketch9.addConstraint([
    Sketcher.Constraint("Coincident", 0, 2, 1, 1),
    Sketcher.Constraint("Coincident", 1, 2, 2, 1),
    Sketcher.Constraint("Coincident", 2, 2, 3, 1),
    Sketcher.Constraint("Coincident", 3, 2, 4, 1),
    Sketcher.Constraint("Coincident", 4, 2, 5, 1),
    Sketcher.Constraint("Coincident", 5, 2, 0, 1),
    Sketcher.Constraint("Vertical", 1),
    Sketcher.Constraint("Horizontal", 2),
    Sketcher.Constraint("Vertical", 3),
    Sketcher.Constraint("Horizontal", 4),
    Sketcher.Constraint("Equal", 4, 1),
    Sketcher.Constraint("Equal", 2, 3),
    Sketcher.Constraint("DistanceX", 2, 1, 2, 2, 100.0),
    Sketcher.Constraint("DistanceX", 4, 2, 4, 1, 30.0),
    Sketcher.Constraint("DistanceX", 0, 2, -1, 1, 417.482318),
    Sketcher.Constraint("Distance", 0, 70.991357),
    Sketcher.Constraint("Distance", 5, 65.901485),
    Sketcher.Constraint("DistanceY", -1, 1, 0, 2, 997.026498),
])
pad7 = body2.newObject("PartDesign::Pad", "Pad006")
pad7.Profile = sketch9
pad7.Length = 530
pad7.Reversed = True
body3 = doc.addObject("PartDesign::Body", "Body002")

# Sketch on XY plane
sketch10 = body3.newObject("Sketcher::SketchObject", "Sketch009")
sketch10.AttachmentSupport = (doc.getObject("XY_Plane002"), [""])
sketch10.MapMode = "FlatFace"
sketch10.AttachmentOffset = App.Placement(App.Vector(0, 0, 753), App.Rotation())
sketch10.addGeometry([
    Part.LineSegment(App.Vector(-732, 1027, 0), App.Vector(-732, 997, 0)),  # 0
    Part.LineSegment(App.Vector(-732, 997, 0), App.Vector(-802, 997, 0)),  # 1
    Part.LineSegment(App.Vector(-802, 997, 0), App.Vector(-802, 927, 0)),  # 2
    Part.LineSegment(App.Vector(-802, 927, 0), App.Vector(-832, 927, 0)),  # 3
    Part.LineSegment(App.Vector(-832, 927, 0), App.Vector(-832, 1027, 0)),  # 4
    Part.LineSegment(App.Vector(-832, 1027, 0), App.Vector(-732, 1027, 0)),  # 5
], False)
sketch10.addConstraint([
    Sketcher.Constraint("Coincident", 0, 2, 1, 1),
    Sketcher.Constraint("Coincident", 1, 2, 2, 1),
    Sketcher.Constraint("Coincident", 2, 2, 3, 1),
    Sketcher.Constraint("Coincident", 3, 2, 4, 1),
    Sketcher.Constraint("Coincident", 4, 2, 5, 1),
    Sketcher.Constraint("Coincident", 5, 2, 0, 1),
    Sketcher.Constraint("Vertical", 0),
    Sketcher.Constraint("Horizontal", 1),
    Sketcher.Constraint("Vertical", 2),
    Sketcher.Constraint("Horizontal", 3),
    Sketcher.Constraint("Vertical", 4),
    Sketcher.Constraint("Horizontal", 5),
    Sketcher.Constraint("Equal", 3, 0),
    Sketcher.Constraint("Equal", 1, 2),
    Sketcher.Constraint("DistanceX", 1, 2, 1, 1, 70.0),
    Sketcher.Constraint("DistanceX", 3, 2, 3, 1, 30.0),
    Sketcher.Constraint("DistanceX", 0, 2, -1, 1, 731.532785),
    Sketcher.Constraint("DistanceY", -1, 1, 0, 2, 997.026498),
])
pad8 = body3.newObject("PartDesign::Pad", "Pad007")
pad8.Profile = sketch10
pad8.Length = 530
pad8.Reversed = True
body4 = doc.addObject("PartDesign::Body", "Body003")

# Sketch on XY plane
sketch11 = body4.newObject("Sketcher::SketchObject", "Sketch010")
sketch11.AttachmentSupport = (doc.getObject("XY_Plane003"), [""])
sketch11.MapMode = "FlatFace"
sketch11.AttachmentOffset = App.Placement(App.Vector(0, 0, 753), App.Rotation())
sketch11.addGeometry([
    Part.LineSegment(App.Vector(-832, 583, 0), App.Vector(-802, 583, 0)),  # 0
    Part.LineSegment(App.Vector(-802, 583, 0), App.Vector(-802, 513, 0)),  # 1
    Part.LineSegment(App.Vector(-802, 513, 0), App.Vector(-732, 513, 0)),  # 2
    Part.LineSegment(App.Vector(-732, 513, 0), App.Vector(-732, 483, 0)),  # 3
    Part.LineSegment(App.Vector(-732, 483, 0), App.Vector(-832, 483, 0)),  # 4
    Part.LineSegment(App.Vector(-832, 483, 0), App.Vector(-832, 583, 0)),  # 5
], False)
sketch11.addConstraint([
    Sketcher.Constraint("Coincident", 0, 2, 1, 1),
    Sketcher.Constraint("Coincident", 1, 2, 2, 1),
    Sketcher.Constraint("Coincident", 2, 2, 3, 1),
    Sketcher.Constraint("Coincident", 3, 2, 4, 1),
    Sketcher.Constraint("Coincident", 4, 2, 5, 1),
    Sketcher.Constraint("Coincident", 5, 2, 0, 1),
    Sketcher.Constraint("Horizontal", 0),
    Sketcher.Constraint("Vertical", 1),
    Sketcher.Constraint("Horizontal", 2),
    Sketcher.Constraint("Vertical", 3),
    Sketcher.Constraint("Horizontal", 4),
    Sketcher.Constraint("Vertical", 5),
    Sketcher.Constraint("Equal", 2, 1),
    Sketcher.Constraint("Equal", 0, 3),
    Sketcher.Constraint("DistanceX", 0, 1, 0, 2, 30.0),
    Sketcher.Constraint("DistanceX", 2, 1, 2, 2, 70.0),
    Sketcher.Constraint("DistanceX", 0, 2, -1, 1, 801.532785),
    Sketcher.Constraint("DistanceY", -1, 1, 0, 2, 583.105727),
])
pad9 = body4.newObject("PartDesign::Pad", "Pad008")
pad9.Profile = sketch11
pad9.Length = 530
pad9.Reversed = True
body5 = doc.addObject("PartDesign::Body", "Body004")

# Sketch on XY plane
sketch12 = body5.newObject("Sketcher::SketchObject", "Sketch011")
sketch12.AttachmentSupport = (doc.getObject("XY_Plane004"), [""])
sketch12.MapMode = "FlatFace"
sketch12.AttachmentOffset = App.Placement(App.Vector(0, 0, 753), App.Rotation())
sketch12.addGeometry([
    Part.LineSegment(App.Vector(-347, 513, 0), App.Vector(-347, 583, 0)),  # 0
    Part.LineSegment(App.Vector(-347, 583, 0), App.Vector(-317, 583, 0)),  # 1
    Part.LineSegment(App.Vector(-317, 583, 0), App.Vector(-317, 483, 0)),  # 2
    Part.LineSegment(App.Vector(-317, 483, 0), App.Vector(-417, 483, 0)),  # 3
    Part.LineSegment(App.Vector(-417, 483, 0), App.Vector(-417, 513, 0)),  # 4
    Part.LineSegment(App.Vector(-417, 513, 0), App.Vector(-347, 513, 0)),  # 5
], False)
sketch12.addConstraint([
    Sketcher.Constraint("Coincident", 0, 2, 1, 1),
    Sketcher.Constraint("Coincident", 1, 2, 2, 1),
    Sketcher.Constraint("Coincident", 2, 2, 3, 1),
    Sketcher.Constraint("Coincident", 3, 2, 4, 1),
    Sketcher.Constraint("Coincident", 4, 2, 5, 1),
    Sketcher.Constraint("Coincident", 5, 2, 0, 1),
    Sketcher.Constraint("Vertical", 0),
    Sketcher.Constraint("Horizontal", 1),
    Sketcher.Constraint("Vertical", 2),
    Sketcher.Constraint("Horizontal", 3),
    Sketcher.Constraint("Vertical", 4),
    Sketcher.Constraint("Horizontal", 5),
    Sketcher.Constraint("Equal", 5, 0),
    Sketcher.Constraint("Equal", 3, 2),
    Sketcher.Constraint("DistanceX", 1, 1, 1, 2, 30.0),
    Sketcher.Constraint("DistanceX", 3, 2, 3, 1, 100.0),
    Sketcher.Constraint("DistanceX", 0, 2, -1, 1, 347.482318),
    Sketcher.Constraint("DistanceY", -1, 1, 0, 2, 583.105727),
])
pad10 = body5.newObject("PartDesign::Pad", "Pad009")
pad10.Profile = sketch12
pad10.Length = 530
pad10.Reversed = True
body6 = doc.addObject("PartDesign::Body", "Body005")

# Sketch on XY plane
sketch13 = body6.newObject("Sketcher::SketchObject", "Sketch012")
sketch13.AttachmentSupport = (doc.getObject("XY_Plane005"), [""])
sketch13.MapMode = "FlatFace"
sketch13.AttachmentOffset = App.Placement(App.Vector(0, 0, -461), App.Rotation())
sketch13.addGeometry(Part.Circle(App.Vector(-979, 863, 0), App.Vector(0, 0, 1), 22), False)
sketch13.addConstraint([
    Sketcher.Constraint("Diameter", 0, 44.763742),
    Sketcher.Constraint("DistanceY", -1, 1, 0, 3, 862.691498),
    Sketcher.Constraint("DistanceX", 0, 3, -1, 1, 978.977643),
])
pad11 = body6.newObject("PartDesign::Pad", "Pad010")
pad11.Profile = sketch13
pad11.Length = 50
doc.recompute()

fillet = body6.newObject("PartDesign::Fillet", "Fillet")
fillet.Base = (pad11, edges_at(pad11, [(-956.596, 862.691, -411)]))
fillet.Radius = 20
body7 = doc.addObject("PartDesign::Body", "Body006")

# Sketch on XY plane
sketch14 = body7.newObject("Sketcher::SketchObject", "Sketch013")
sketch14.AttachmentSupport = (doc.getObject("XY_Plane006"), [""])
sketch14.MapMode = "FlatFace"
sketch14.AttachmentOffset = App.Placement(App.Vector(0, 0, -461), App.Rotation())
sketch14.addGeometry(Part.Circle(App.Vector(-979, 663, 0), App.Vector(0, 0, 1), 22), False)
sketch14.addConstraint([
    Sketcher.Constraint("Diameter", 0, 44.763742),
    Sketcher.Constraint("DistanceX", 0, 3, -1, 1, 978.977643),
    Sketcher.Constraint("DistanceY", -1, 1, 0, 3, 663.223286),
])
pad12 = body7.newObject("PartDesign::Pad", "Pad011")
pad12.Profile = sketch14
pad12.Length = 50
doc.recompute()

fillet2 = body7.newObject("PartDesign::Fillet", "Fillet001")
fillet2.Base = (pad12, edges_at(pad12, [(-956.596, 663.223, -411)]))
fillet2.Radius = 20

doc.recompute()
